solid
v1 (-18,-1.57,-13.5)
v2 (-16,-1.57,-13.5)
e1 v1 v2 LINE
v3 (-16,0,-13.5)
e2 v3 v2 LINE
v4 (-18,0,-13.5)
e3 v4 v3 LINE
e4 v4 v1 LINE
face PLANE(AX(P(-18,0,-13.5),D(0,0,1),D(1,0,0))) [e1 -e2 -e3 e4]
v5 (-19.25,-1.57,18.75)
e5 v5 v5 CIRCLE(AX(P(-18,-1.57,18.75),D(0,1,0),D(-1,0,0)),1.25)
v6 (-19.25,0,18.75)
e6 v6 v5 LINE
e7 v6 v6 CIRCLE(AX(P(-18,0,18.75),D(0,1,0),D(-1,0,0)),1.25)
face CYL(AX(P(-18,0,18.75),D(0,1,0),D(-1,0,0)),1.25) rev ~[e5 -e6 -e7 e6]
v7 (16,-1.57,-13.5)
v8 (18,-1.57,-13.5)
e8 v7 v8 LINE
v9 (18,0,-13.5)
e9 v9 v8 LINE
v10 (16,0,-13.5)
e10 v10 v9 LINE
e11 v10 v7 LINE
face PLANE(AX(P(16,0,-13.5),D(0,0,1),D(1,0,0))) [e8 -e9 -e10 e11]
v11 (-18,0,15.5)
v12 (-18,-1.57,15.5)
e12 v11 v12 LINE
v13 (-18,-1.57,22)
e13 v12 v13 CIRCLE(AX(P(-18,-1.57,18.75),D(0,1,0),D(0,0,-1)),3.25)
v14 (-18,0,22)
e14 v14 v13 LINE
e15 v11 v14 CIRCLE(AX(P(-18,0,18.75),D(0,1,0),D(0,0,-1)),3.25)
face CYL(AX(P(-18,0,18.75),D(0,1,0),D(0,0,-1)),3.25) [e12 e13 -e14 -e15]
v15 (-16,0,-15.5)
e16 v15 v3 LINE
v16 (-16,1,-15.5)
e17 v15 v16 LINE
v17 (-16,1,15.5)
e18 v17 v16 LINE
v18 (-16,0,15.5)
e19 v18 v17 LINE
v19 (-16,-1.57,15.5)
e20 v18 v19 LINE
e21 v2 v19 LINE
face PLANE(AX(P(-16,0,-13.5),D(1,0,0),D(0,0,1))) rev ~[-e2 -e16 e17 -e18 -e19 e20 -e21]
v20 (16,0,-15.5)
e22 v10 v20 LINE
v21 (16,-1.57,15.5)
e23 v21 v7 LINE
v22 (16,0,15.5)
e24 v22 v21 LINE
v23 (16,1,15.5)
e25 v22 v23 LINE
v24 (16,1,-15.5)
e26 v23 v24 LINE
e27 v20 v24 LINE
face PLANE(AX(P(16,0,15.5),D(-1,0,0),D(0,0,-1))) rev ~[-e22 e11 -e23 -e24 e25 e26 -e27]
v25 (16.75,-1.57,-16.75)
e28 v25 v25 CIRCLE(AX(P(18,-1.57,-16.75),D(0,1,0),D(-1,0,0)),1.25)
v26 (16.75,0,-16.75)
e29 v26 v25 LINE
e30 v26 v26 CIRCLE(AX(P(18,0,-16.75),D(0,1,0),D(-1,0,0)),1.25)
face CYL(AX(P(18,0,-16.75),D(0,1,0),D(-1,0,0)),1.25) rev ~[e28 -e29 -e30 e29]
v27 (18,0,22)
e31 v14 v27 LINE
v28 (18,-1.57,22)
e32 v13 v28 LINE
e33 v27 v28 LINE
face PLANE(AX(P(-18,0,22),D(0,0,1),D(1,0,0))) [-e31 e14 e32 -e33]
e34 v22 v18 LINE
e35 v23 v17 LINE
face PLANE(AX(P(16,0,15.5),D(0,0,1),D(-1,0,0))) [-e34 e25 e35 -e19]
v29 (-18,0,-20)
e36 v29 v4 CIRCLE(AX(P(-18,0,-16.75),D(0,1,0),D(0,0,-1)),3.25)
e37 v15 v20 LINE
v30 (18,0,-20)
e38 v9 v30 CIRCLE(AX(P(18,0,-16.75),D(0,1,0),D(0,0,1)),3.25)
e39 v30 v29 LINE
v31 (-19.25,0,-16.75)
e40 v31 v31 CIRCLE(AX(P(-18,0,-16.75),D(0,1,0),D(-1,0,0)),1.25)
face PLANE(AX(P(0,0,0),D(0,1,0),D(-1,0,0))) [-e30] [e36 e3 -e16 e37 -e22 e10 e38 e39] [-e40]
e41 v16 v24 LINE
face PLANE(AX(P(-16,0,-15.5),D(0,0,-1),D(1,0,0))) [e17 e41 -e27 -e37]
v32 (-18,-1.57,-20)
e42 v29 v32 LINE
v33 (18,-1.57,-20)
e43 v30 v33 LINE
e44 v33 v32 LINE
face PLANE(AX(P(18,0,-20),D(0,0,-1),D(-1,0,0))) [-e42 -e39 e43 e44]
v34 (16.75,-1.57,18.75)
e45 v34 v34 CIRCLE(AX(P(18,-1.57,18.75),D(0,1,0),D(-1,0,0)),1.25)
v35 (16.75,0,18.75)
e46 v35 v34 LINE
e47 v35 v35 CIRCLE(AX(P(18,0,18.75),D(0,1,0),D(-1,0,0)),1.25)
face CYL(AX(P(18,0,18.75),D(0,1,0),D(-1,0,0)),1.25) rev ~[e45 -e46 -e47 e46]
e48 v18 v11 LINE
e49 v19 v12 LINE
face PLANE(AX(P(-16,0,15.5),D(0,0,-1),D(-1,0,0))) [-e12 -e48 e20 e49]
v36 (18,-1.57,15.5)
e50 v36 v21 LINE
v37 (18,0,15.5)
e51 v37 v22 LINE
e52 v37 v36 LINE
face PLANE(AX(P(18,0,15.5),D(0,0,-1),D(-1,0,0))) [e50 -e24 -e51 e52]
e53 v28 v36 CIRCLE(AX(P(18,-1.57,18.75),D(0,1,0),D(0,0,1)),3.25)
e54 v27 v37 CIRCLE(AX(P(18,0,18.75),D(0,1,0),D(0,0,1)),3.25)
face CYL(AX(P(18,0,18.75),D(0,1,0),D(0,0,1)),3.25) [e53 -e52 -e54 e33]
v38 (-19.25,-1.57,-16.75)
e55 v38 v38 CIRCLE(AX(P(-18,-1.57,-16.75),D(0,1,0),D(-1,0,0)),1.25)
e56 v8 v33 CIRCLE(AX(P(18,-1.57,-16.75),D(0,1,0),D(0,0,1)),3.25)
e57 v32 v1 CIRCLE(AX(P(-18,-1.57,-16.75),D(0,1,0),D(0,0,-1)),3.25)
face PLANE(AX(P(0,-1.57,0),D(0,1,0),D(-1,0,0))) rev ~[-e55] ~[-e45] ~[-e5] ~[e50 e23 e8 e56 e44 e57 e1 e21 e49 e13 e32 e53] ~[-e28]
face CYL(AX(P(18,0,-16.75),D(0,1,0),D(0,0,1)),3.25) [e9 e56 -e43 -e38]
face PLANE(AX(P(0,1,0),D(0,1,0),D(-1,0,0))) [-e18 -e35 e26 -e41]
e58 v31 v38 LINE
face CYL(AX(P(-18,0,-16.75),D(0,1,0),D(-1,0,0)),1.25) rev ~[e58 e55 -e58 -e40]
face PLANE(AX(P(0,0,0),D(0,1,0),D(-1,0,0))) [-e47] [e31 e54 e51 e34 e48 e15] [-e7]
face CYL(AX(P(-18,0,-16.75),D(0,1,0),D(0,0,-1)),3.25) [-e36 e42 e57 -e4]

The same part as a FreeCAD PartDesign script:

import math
import FreeCAD as App
import Part
import Sketcher

V = App.Vector

doc = App.newDocument("Part")
body = doc.addObject("PartDesign::Body", "Body")

# Sketch on XZ plane
sketch1 = doc.addObject("Sketcher::SketchObject", "Sketch")
body.addObject(sketch1)
sketch1.AttachmentSupport = (doc.XZ_Plane, [""])
sketch1.MapMode = "FlatFace"
sketch1.addGeometry([
    Part.ArcOfCircle(Part.Circle(V(-18, 18.75, 0), V(0, 0, 1), 3.25), math.radians(90), math.radians(270)),  # 0
    Part.LineSegment(V(-18, 22, 0), V(18, 22, 0)),  # 1
    Part.ArcOfCircle(Part.Circle(V(18, 18.75, 0), V(0, 0, 1), 3.25), math.radians(-90), math.radians(90)),  # 2
    Part.LineSegment(V(18, 15.5, 0), V(16, 15.5, 0)),  # 3
    Part.LineSegment(V(16, 15.5, 0), V(16, -13.5, 0)),  # 4
    Part.LineSegment(V(16, -13.5, 0), V(18, -13.5, 0)),  # 5
    Part.ArcOfCircle(Part.Circle(V(18, -16.75, 0), V(0, 0, 1), 3.25), math.radians(-90), math.radians(90)),  # 6
    Part.LineSegment(V(18, -20, 0), V(-18, -20, 0)),  # 7
    Part.ArcOfCircle(Part.Circle(V(-18, -16.75, 0), V(0, 0, 1), 3.25), math.radians(90), math.radians(270)),  # 8
    Part.LineSegment(V(-18, -13.5, 0), V(-16, -13.5, 0)),  # 9
    Part.LineSegment(V(-16, -13.5, 0), V(-16, 15.5, 0)),  # 10
    Part.LineSegment(V(-16, 15.5, 0), V(-18, 15.5, 0)),  # 11
    Part.Circle(V(18, 18.75, 0), V(0, 0, 1), 1.25),  # 12
    Part.Circle(V(-18, 18.75, 0), V(0, 0, 1), 1.25),  # 13
    Part.Circle(V(-18, -16.75, 0), V(0, 0, 1), 1.25),  # 14
    Part.Circle(V(18, -16.75, 0), V(0, 0, 1), 1.25),  # 15
], False)
sketch1.addConstraint([
    Sketcher.Constraint("Tangent", 0, 1, 1, 1),
    Sketcher.Constraint("Tangent", 1, 2, 2, 2),
    Sketcher.Constraint("Tangent", 2, 1, 3, 1),
    Sketcher.Constraint("Coincident", 3, 2, 4, 1),
    Sketcher.Constraint("Coincident", 4, 2, 5, 1),
    Sketcher.Constraint("Tangent", 5, 2, 6, 2),
    Sketcher.Constraint("Tangent", 6, 1, 7, 1),
    Sketcher.Constraint("Tangent", 7, 2, 8, 2),
    Sketcher.Constraint("Tangent", 8, 1, 9, 1),
    Sketcher.Constraint("Coincident", 9, 2, 10, 1),
    Sketcher.Constraint("Coincident", 10, 2, 11, 1),
    Sketcher.Constraint("Tangent", 11, 2, 0, 2),
    Sketcher.Constraint("Horizontal", 1),
    Sketcher.Constraint("Horizontal", 3),
    Sketcher.Constraint("Vertical", 4),
    Sketcher.Constraint("Horizontal", 5),
    Sketcher.Constraint("Horizontal", 7),
    Sketcher.Constraint("Horizontal", 9),
    Sketcher.Constraint("Vertical", 10),
    Sketcher.Constraint("Horizontal", 11),
    Sketcher.Constraint("Coincident", 12, 3, 2, 3),
    Sketcher.Constraint("Coincident", 13, 3, 0, 3),
    Sketcher.Constraint("Coincident", 14, 3, 8, 3),
    Sketcher.Constraint("Coincident", 15, 3, 6, 3),
    Sketcher.Constraint("Equal", 0, 2),
    Sketcher.Constraint("Equal", 2, 6),
    Sketcher.Constraint("Equal", 6, 8),
    Sketcher.Constraint("Equal", 12, 13),
    Sketcher.Constraint("Equal", 13, 14),
    Sketcher.Constraint("Equal", 14, 15),
    Sketcher.Constraint("Vertical", 2, 3, 6, 3),
    Sketcher.Constraint("Vertical", 0, 3, 8, 3),
    Sketcher.Constraint("Equal", 5, 9),
    Sketcher.Constraint("Diameter", 12, 2.5),
    Sketcher.Constraint("DistanceX", 3, 2, 3, 1, 2.0),
    Sketcher.Constraint("DistanceX", 9, 2, 4, 2, 32.0),
    Sketcher.Constraint("DistanceY", 4, 2, 4, 1, 29.0),
    Sketcher.Constraint("Radius", 0, 3.25),
    Sketcher.Constraint("DistanceX", 0, 3, -1, 1, 18.0),
    Sketcher.Constraint("DistanceY", -1, 1, 0, 1, 22.0),
])
pad1 = doc.addObject("PartDesign::Pad", "Pad")
body.addObject(pad1)
pad1.Profile = sketch1
pad1.Length = 1.57

# Sketch on XZ plane
sketch2 = doc.addObject("Sketcher::SketchObject", "Sketch001")
body.addObject(sketch2)
sketch2.AttachmentSupport = (doc.XZ_Plane, [""])
sketch2.MapMode = "FlatFace"
sketch2.addGeometry([
    Part.LineSegment(V(-16, -15.5, 0), V(-16, 15.5, 0)),
    Part.LineSegment(V(-16, 15.5, 0), V(16, 15.5, 0)),
    Part.LineSegment(V(16, 15.5, 0), V(16, -15.5, 0)),
    Part.LineSegment(V(16, -15.5, 0), V(-16, -15.5, 0)),
], False)
sketch2.addConstraint([
    Sketcher.Constraint("Coincident", 0, 2, 1, 1),
    Sketcher.Constraint("Coincident", 1, 2, 2, 1),
    Sketcher.Constraint("Coincident", 2, 2, 3, 1),
    Sketcher.Constraint("Coincident", 3, 2, 0, 1),
    Sketcher.Constraint("Vertical", 0),
    Sketcher.Constraint("Horizontal", 1),
    Sketcher.Constraint("Vertical", 2),
    Sketcher.Constraint("Horizontal", 3),
    Sketcher.Constraint("Symmetric", 0, 2, 2, 2, -1, 1),
    Sketcher.Constraint("DistanceX", 1, 1, 1, 2, 32.0),
    Sketcher.Constraint("DistanceY", 0, 1, 0, 2, 31.0),
])
pad2 = doc.addObject("PartDesign::Pad", "Pad001")
body.addObject(pad2)
pad2.Profile = sketch2
pad2.Length = 1
pad2.Reversed = True

doc.recompute()
